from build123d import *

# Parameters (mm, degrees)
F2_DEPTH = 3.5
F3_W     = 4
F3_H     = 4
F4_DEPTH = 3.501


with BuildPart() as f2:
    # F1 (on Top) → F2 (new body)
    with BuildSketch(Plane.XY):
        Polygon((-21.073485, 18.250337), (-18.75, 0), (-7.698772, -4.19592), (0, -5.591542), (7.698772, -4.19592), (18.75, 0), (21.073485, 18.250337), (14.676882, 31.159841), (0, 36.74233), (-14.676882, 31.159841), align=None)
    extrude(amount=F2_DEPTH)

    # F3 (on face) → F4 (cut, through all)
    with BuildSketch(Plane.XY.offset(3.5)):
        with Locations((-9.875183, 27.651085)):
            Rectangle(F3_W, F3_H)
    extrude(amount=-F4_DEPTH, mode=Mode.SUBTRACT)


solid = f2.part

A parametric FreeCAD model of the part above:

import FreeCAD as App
import Part
import Sketcher


def add_polygon(sketch, points):
    """Adds a closed chain of lines whose ends are joined by coincident constraints."""
    first, n = sketch.GeometryCount, len(points)
    for a, b in zip(points, points[1:] + points[:1]):
        sketch.addGeometry(Part.LineSegment(App.Vector(*a, 0), App.Vector(*b, 0)), False)
    for i in range(n):
        sketch.addConstraint(Sketcher.Constraint("Coincident", first + i, 2, first + (i + 1) % n, 1))

doc = App.newDocument("Part")
body = doc.addObject("PartDesign::Body", "Body")

# Sketch on XY plane
sketch1 = doc.addObject("Sketcher::SketchObject", "Sketch")
body.addObject(sketch1)
sketch1.AttachmentSupport = (doc.XY_Plane, [""])
sketch1.MapMode = "FlatFace"
add_polygon(sketch1, [(-21, 18), (-19, 0), (-8, -4), (0, -6), (8, -4), (19, 0), (21, 18), (15, 31), (0, 37), (-15, 31)])  # lines 0-9
sketch1.addConstraint(Sketcher.Constraint("Symmetric", 0, 2, 4, 2, -1, 1))
sketch1.addConstraint(Sketcher.Constraint("Symmetric", 1, 2, 3, 2, -2))
sketch1.addConstraint(Sketcher.Constraint("Symmetric", 6, 2, 8, 2, -2))
sketch1.addConstraint(Sketcher.Constraint("Symmetric", 5, 2, 9, 2, -2))
sketch1.addConstraint(Sketcher.Constraint("PointOnObject", 0, 2, -1))
sketch1.addConstraint(Sketcher.Constraint("PointOnObject", 2, 2, -2))
sketch1.addConstraint(Sketcher.Constraint("PointOnObject", 7, 2, -2))
sketch1.addConstraint(Sketcher.Constraint("DistanceX", 0, 2, 4, 2, 37.5))
sketch1.addConstraint(Sketcher.Constraint("Distance", 7, 15.702708))
sketch1.addConstraint(Sketcher.Constraint("DistanceY", 1, 2, -1, 1, 4.19592))
sketch1.addConstraint(Sketcher.Constraint("DistanceY", 2, 2, -1, 1, 5.591542))
sketch1.addConstraint(Sketcher.Constraint("DistanceY", -1, 1, 6, 2, 31.159841))
sketch1.addConstraint(Sketcher.Constraint("DistanceY", -1, 1, 7, 2, 36.74233))
sketch1.addConstraint(Sketcher.Constraint("DistanceX", 0, 2, 3, 2, 26.448772))
sketch1.addConstraint(Sketcher.Constraint("DistanceY", 2, 2, 5, 2, 23.841879))
sketch1.addConstraint(Sketcher.Constraint("Distance", 0, 18.397646))
pad1 = doc.addObject("PartDesign::Pad", "Pad")
body.addObject(pad1)
pad1.Profile = sketch1
pad1.Length = 3.5

# Sketch on XY plane
sketch2 = doc.addObject("Sketcher::SketchObject", "Sketch001")
body.addObject(sketch2)
sketch2.AttachmentSupport = (doc.XY_Plane, [""])
sketch2.MapMode = "FlatFace"
sketch2.AttachmentOffset = App.Placement(App.Vector(0, 0, 3.5), App.Rotation())
add_polygon(sketch2, [(-11.9, 29.7), (-11.9, 25.7), (-7.9, 25.7), (-7.9, 29.7)])  # lines 0-3
sketch2.addConstraint(Sketcher.Constraint("Vertical", 0))
sketch2.addConstraint(Sketcher.Constraint("Horizontal", 1))
sketch2.addConstraint(Sketcher.Constraint("Vertical", 2))
sketch2.addConstraint(Sketcher.Constraint("Horizontal", 3))
sketch2.addConstraint(Sketcher.Constraint("Equal", 3, 0))
sketch2.addConstraint(Sketcher.Constraint("DistanceX", 1, 1, 1, 2, 4.0))
sketch2.addConstraint(Sketcher.Constraint("DistanceX", 0, 2, -1, 1, 11.875183))
sketch2.addConstraint(Sketcher.Constraint("DistanceY", -1, 1, 0, 2, 25.651085))
pocket1 = doc.addObject("PartDesign::Pocket", "Pocket")
body.addObject(pocket1)
pocket1.Profile = sketch2
pocket1.Type = "ThroughAll"

doc.recompute()
